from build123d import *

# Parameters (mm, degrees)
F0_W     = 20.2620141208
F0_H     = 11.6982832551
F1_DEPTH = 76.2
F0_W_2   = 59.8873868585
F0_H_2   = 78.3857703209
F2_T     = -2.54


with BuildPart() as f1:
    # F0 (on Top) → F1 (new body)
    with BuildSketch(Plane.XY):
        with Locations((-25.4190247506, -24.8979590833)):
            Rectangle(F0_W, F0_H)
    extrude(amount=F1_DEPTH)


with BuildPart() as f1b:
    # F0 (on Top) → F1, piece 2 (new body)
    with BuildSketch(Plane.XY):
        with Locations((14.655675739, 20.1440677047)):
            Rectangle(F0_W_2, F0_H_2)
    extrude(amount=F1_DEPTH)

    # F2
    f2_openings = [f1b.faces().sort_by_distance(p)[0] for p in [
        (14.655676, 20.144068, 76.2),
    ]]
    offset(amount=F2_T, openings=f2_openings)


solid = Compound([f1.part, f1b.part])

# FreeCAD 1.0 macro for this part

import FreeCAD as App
import Part
import Sketcher
Q = App.Units.Quantity


def faces_at(feature, points):
    """Names of the faces that lie closest to the given points."""
    faces = feature.Shape.Faces
    near = lambda p: min(range(len(faces)), key=lambda i: faces[i].distToShape(Part.Vertex(*p))[0])
    return sorted({f"Face{near(p) + 1}" for p in points})


def add_polygon(sketch, points):
    """Adds a closed chain of lines whose ends are joined by coincident constraints."""
    first, n = sketch.GeometryCount, len(points)
    for a, b in zip(points, points[1:] + points[:1]):
        sketch.addGeometry(Part.LineSegment(App.Vector(*a, 0), App.Vector(*b, 0)), False)
    for i in range(n):
        sketch.addConstraint(Sketcher.Constraint("Coincident", first + i, 2, first + (i + 1) % n, 1))

doc = App.newDocument("Part")
body = doc.addObject("PartDesign::Body", "Body")

# Sketch on XY plane
sketch1 = doc.addObject("Sketcher::SketchObject", "Sketch")
body.addObject(sketch1)
sketch1.AttachmentSupport = (doc.XY_Plane, [""])
sketch1.MapMode = "FlatFace"
add_polygon(sketch1, [(-35.550032, -19.048817), (-35.550032, -30.747101), (-15.288018, -30.747101), (-15.288018, -19.048817)])  # lines 0-3
sketch1.addConstraint(Sketcher.Constraint("Vertical", 0))
sketch1.addConstraint(Sketcher.Constraint("Horizontal", 1))
sketch1.addConstraint(Sketcher.Constraint("Vertical", 2))
sketch1.addConstraint(Sketcher.Constraint("Horizontal", 3))
sketch1.addConstraint(Sketcher.Constraint("DistanceY", 0, 2, -1, 1, 30.747101))
sketch1.addConstraint(Sketcher.Constraint("DistanceX", 1, 1, 1, 2, 20.262014))
sketch1.addConstraint(Sketcher.Constraint("DistanceY", 0, 2, 0, 1, 11.698283))
sketch1.addConstraint(Sketcher.Constraint("DistanceX", 0, 2, -1, 1, 35.550032))
pad1 = doc.addObject("PartDesign::Pad", "Pad")
body.addObject(pad1)
pad1.Profile = sketch1
pad1.Length = Q("3 in")
body2 = doc.addObject("PartDesign::Body", "Body001")

# Sketch on XY plane
sketch2 = doc.addObject("Sketcher::SketchObject", "Sketch001")
body2.addObject(sketch2)
sketch2.AttachmentSupport = (doc.getObject("XY_Plane001"), [""])
sketch2.MapMode = "FlatFace"
add_polygon(sketch2, [(-15.288018, 59.336953), (-15.288018, -19.048817), (44.599369, -19.048817), (44.599369, 59.336953)])  # lines 0-3
sketch2.addConstraint(Sketcher.Constraint("Vertical", 0))
sketch2.addConstraint(Sketcher.Constraint("Horizontal", 1))
sketch2.addConstraint(Sketcher.Constraint("Vertical", 2))
sketch2.addConstraint(Sketcher.Constraint("Horizontal", 3))
sketch2.addConstraint(Sketcher.Constraint("DistanceY", 0, 2, 0, 1, 78.38577))
sketch2.addConstraint(Sketcher.Constraint("DistanceX", 1, 1, 1, 2, 59.887387))
sketch2.addConstraint(Sketcher.Constraint("DistanceX", -1, 1, 1, 2, 44.599369))
sketch2.addConstraint(Sketcher.Constraint("DistanceY", 0, 2, -1, 1, 19.048817))
pad2 = doc.addObject("PartDesign::Pad", "Pad001")
body2.addObject(pad2)
pad2.Profile = sketch2
pad2.Length = Q("3 in")
doc.recompute()

thickness = doc.addObject("PartDesign::Thickness", "Thickness")
body2.addObject(thickness)
thickness.Base = (pad2, faces_at(pad2, [(14.656, 20.144, 76.2)]))
thickness.Value = Q("0.1 in")
thickness.Reversed = True
thickness.Join = "Arc"

doc.recompute()
